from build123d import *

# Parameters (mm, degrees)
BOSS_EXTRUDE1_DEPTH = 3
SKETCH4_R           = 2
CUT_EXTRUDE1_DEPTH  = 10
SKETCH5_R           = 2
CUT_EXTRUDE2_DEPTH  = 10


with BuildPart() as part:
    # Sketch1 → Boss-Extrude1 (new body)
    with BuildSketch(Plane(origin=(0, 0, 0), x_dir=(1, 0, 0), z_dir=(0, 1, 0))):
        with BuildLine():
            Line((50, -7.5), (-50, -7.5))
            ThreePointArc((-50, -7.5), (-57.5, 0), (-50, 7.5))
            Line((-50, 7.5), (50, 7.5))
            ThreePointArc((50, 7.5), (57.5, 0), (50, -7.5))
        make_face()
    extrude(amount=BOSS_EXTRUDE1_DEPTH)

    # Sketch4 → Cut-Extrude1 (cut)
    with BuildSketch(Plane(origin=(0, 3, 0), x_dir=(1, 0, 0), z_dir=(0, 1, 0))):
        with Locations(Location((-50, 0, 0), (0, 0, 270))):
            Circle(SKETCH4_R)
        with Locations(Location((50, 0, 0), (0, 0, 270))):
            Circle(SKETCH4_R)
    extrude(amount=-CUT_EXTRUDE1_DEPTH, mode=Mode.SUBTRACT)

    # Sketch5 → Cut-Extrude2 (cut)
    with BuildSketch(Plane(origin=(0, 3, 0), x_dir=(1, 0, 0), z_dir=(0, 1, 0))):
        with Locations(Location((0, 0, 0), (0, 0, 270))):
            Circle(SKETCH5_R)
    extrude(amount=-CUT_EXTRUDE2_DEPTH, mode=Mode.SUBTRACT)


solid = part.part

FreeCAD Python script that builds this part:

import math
import FreeCAD as App
import Part
import Sketcher

V = App.Vector
Q = App.Units.Quantity

doc = App.newDocument("Part")
body = doc.addObject("PartDesign::Body", "Body")

# Sketch on XZ plane
sketch1 = body.newObject("Sketcher::SketchObject", "Sketch")
sketch1.AttachmentSupport = (doc.getObject("XZ_Plane"), [""])
sketch1.MapMode = "FlatFace"
sketch1.addGeometry(Part.LineSegment(V(-50, 8, 0), V(50, 8, 0)), False)
sketch1.addGeometry(Part.ArcOfCircle(Part.Circle(V(50, 0, 0), V(0, 0, 1), 8), math.radians(-90), math.radians(90)), False)
sketch1.addGeometry(Part.LineSegment(V(50, -8, 0), V(-50, -8, 0)), False)
sketch1.addGeometry(Part.ArcOfCircle(Part.Circle(V(-50, 0, 0), V(0, 0, 1), 8), math.radians(90), math.radians(270)), False)
sketch1.addConstraint(Sketcher.Constraint("Tangent", 0, 2, 1, 2))
sketch1.addConstraint(Sketcher.Constraint("Tangent", 1, 1, 2, 1))
sketch1.addConstraint(Sketcher.Constraint("Tangent", 2, 2, 3, 2))
sketch1.addConstraint(Sketcher.Constraint("Tangent", 3, 1, 0, 1))
sketch1.addConstraint(Sketcher.Constraint("Horizontal", 0))
sketch1.addConstraint(Sketcher.Constraint("Horizontal", 2))
sketch1.addConstraint(Sketcher.Constraint("Symmetric", 1, 3, 3, 3, -1, 1))
sketch1.addConstraint(Sketcher.Constraint("Radius", 1, Q("7.5 mm")))
sketch1.addConstraint(Sketcher.Constraint("DistanceX", 0, 1, 0, 2, Q("100 mm")))
pad1 = body.newObject("PartDesign::Pad", "Pad")
pad1.Profile = sketch1
pad1.Length = 3
pad1.Reversed = True

# Sketch on XZ plane
sketch2 = body.newObject("Sketcher::SketchObject", "Sketch001")
sketch2.AttachmentSupport = (doc.getObject("XZ_Plane"), [""])
sketch2.MapMode = "FlatFace"
sketch2.AttachmentOffset = App.Placement(V(0, 0, -3), App.Rotation())
sketch2.addGeometry(Part.Circle(V(-50, 0, 0), V(0, 0, 1), 2), False)
sketch2.addGeometry(Part.Circle(V(50, 0, 0), V(0, 0, 1), 2), False)
sketch2.addConstraint(Sketcher.Constraint("Equal", 0, 1))
sketch2.addConstraint(Sketcher.Constraint("Symmetric", 0, 3, 1, 3, -1, 1))
sketch2.addConstraint(Sketcher.Constraint("PointOnObject", 0, 3, -1))
sketch2.addConstraint(Sketcher.Constraint("Diameter", 0, Q("4 mm")))
sketch2.addConstraint(Sketcher.Constraint("DistanceX", 0, 3, -1, 1, Q("50 mm")))
pocket1 = body.newObject("PartDesign::Pocket", "Pocket")
pocket1.Profile = sketch2
pocket1.Length = 10
pocket1.Reversed = True

# Sketch on XZ plane
sketch3 = body.newObject("Sketcher::SketchObject", "Sketch002")
sketch3.AttachmentSupport = (doc.getObject("XZ_Plane"), [""])
sketch3.MapMode = "FlatFace"
sketch3.AttachmentOffset = App.Placement(V(0, 0, -3), App.Rotation())
sketch3.addGeometry(Part.Circle(V(0, 0, 0), V(0, 0, 1), 2), False)
sketch3.addConstraint(Sketcher.Constraint("Coincident", 0, 3, -1, 1))
sketch3.addConstraint(Sketcher.Constraint("Diameter", 0, Q("4 mm")))
pocket2 = body.newObject("PartDesign::Pocket", "Pocket001")
pocket2.Profile = sketch3
pocket2.Length = 10
pocket2.Reversed = True

doc.recompute()
